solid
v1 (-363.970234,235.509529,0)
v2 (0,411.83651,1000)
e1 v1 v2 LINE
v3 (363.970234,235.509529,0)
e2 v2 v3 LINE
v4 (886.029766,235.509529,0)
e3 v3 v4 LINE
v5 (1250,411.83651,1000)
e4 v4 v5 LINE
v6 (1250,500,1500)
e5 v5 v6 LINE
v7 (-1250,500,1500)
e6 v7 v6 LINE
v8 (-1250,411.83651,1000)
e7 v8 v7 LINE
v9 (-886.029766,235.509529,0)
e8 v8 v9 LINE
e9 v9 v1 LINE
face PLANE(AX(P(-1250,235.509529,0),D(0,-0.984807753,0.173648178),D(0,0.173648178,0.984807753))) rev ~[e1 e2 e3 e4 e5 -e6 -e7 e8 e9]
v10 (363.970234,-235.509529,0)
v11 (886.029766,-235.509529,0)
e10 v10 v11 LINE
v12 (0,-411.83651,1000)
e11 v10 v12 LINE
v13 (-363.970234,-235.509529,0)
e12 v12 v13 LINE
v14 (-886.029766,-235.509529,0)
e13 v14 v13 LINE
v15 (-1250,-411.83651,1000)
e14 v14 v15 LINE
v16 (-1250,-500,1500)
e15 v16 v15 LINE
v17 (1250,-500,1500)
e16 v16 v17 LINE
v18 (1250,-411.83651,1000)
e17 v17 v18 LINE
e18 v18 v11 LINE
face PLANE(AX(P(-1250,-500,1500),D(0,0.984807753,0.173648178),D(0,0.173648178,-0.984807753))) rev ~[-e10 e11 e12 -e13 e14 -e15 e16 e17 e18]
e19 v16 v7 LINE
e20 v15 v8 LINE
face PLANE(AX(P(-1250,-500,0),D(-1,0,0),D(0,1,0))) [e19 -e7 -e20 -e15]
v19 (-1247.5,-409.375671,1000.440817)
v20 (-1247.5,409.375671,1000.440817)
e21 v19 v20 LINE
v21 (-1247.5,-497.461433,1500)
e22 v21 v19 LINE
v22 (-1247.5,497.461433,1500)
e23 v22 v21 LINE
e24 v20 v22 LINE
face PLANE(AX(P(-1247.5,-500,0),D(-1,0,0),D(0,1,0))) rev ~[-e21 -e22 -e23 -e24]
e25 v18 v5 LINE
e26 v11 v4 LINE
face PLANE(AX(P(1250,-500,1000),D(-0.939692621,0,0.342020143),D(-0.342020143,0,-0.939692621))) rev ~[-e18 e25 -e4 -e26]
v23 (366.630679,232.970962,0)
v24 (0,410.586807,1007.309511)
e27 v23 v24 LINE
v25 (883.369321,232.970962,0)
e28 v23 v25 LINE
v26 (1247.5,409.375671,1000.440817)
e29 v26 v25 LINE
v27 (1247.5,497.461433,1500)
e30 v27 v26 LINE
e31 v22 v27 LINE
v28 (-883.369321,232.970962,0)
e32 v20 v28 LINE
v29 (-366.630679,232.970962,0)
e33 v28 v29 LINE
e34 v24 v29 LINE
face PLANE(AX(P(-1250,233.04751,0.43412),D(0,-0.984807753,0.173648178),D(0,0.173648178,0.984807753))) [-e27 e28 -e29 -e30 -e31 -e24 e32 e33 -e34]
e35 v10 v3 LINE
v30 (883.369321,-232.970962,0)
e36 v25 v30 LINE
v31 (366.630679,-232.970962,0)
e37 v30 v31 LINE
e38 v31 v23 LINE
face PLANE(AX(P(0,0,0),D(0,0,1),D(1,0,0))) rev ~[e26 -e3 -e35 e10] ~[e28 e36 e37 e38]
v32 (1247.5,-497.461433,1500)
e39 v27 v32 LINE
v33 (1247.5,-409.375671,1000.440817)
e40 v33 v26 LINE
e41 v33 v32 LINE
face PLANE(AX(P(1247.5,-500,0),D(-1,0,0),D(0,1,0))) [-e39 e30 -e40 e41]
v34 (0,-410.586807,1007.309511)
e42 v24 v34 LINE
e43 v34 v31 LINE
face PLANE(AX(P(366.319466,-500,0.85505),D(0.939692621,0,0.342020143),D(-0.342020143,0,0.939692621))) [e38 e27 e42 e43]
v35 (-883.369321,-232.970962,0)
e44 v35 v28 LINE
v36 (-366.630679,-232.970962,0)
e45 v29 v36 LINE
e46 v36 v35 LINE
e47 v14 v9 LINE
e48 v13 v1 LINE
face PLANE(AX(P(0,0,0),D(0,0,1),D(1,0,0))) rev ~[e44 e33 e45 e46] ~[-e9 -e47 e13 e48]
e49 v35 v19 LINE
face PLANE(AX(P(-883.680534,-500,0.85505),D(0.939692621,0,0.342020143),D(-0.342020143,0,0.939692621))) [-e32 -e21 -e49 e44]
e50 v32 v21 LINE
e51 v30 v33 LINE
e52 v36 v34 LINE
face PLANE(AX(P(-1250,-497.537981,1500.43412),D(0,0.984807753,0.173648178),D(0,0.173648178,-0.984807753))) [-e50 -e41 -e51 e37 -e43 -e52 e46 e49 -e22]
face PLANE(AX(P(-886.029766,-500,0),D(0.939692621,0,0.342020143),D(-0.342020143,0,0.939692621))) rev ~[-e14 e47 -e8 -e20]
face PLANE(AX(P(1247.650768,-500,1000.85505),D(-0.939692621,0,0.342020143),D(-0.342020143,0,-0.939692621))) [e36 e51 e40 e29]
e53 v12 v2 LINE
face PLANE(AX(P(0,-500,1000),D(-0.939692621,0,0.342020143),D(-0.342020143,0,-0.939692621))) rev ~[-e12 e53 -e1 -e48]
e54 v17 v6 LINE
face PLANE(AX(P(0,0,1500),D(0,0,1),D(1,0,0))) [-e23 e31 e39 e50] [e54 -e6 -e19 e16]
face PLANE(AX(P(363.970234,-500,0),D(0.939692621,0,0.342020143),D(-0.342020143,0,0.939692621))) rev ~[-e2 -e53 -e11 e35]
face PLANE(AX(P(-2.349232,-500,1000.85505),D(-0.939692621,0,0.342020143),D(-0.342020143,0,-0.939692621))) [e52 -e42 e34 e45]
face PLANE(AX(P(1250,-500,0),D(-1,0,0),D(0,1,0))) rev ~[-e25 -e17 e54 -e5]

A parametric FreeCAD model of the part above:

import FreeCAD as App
import Part
import Sketcher
from FreeCAD import Vector
Q = App.Units.Quantity


def faces_at(feature, points):
    """Names of the faces that lie closest to the given points."""
    faces = feature.Shape.Faces
    near = lambda p: min(range(len(faces)), key=lambda i: faces[i].distToShape(Part.Vertex(*p))[0])
    return sorted({f"Face{near(p) + 1}" for p in points})


def add_polygon(sketch, points):
    """Adds a closed chain of lines whose ends are joined by coincident constraints."""
    first, n = sketch.GeometryCount, len(points)
    for a, b in zip(points, points[1:] + points[:1]):
        sketch.addGeometry(Part.LineSegment(App.Vector(*a, 0), App.Vector(*b, 0)), False)
    for i in range(n):
        sketch.addConstraint(Sketcher.Constraint("Coincident", first + i, 2, first + (i + 1) % n, 1))

doc = App.newDocument("Part")
body = doc.addObject("PartDesign::Body", "Body")

sketch1 = body.newObject("Sketcher::SketchObject", "Sketch")
sketch1.AttachmentSupport = (doc.getObject("XY_Plane"), [""])
sketch1.MapMode = "FlatFace"
add_polygon(sketch1, [(-1250, 500), (-1250, -500), (1250, -500), (1250, 500)])
sketch1.addConstraint([
    Sketcher.Constraint("Vertical", 0),
    Sketcher.Constraint("Horizontal", 1),
    Sketcher.Constraint("Vertical", 2),
    Sketcher.Constraint("Horizontal", 3),
    Sketcher.Constraint("Symmetric", 0, 2, 2, 2, -1, 1),
    Sketcher.Constraint("DistanceX", 1, 1, 1, 2, 2500.0),
    Sketcher.Constraint("DistanceY", 0, 2, 0, 1, 1000.0),
])
pad1 = body.newObject("PartDesign::Pad", "Pad")
pad1.Profile = sketch1
pad1.Length = 1500

sketch2 = body.newObject("Sketcher::SketchObject", "Sketch001")
sketch2.AttachmentSupport = (doc.getObject("XZ_Plane"), [""])
sketch2.MapMode = "FlatFace"
sketch2.AttachmentOffset = App.Placement(Vector(0, 0, 500), App.Rotation())
add_polygon(sketch2, [(-886, 0), (-1250, 1000), (-1250, 0)])
add_polygon(sketch2, [(0, 1000), (-364, 0), (364, 0)])
add_polygon(sketch2, [(1250, 0), (1250, 1000), (886, 0)])
sketch2.addConstraint([
    Sketcher.Constraint("Vertical", 1),
    Sketcher.Constraint("Horizontal", 2),
    Sketcher.Constraint("Horizontal", 4),
    Sketcher.Constraint("Vertical", 6),
    Sketcher.Constraint("Horizontal", 8),
    Sketcher.Constraint("Symmetric", 3, 2, 4, 2, -1, 1),
    Sketcher.Constraint("Symmetric", 2, 2, 7, 2, -1, 1),
    Sketcher.Constraint("Symmetric", 0, 2, 6, 2, -2),
    Sketcher.Constraint("PointOnObject", 1, 2, -1),
    Sketcher.Constraint("PointOnObject", 5, 2, -2),
    Sketcher.Constraint("Parallel", 0, 5),
    Sketcher.Constraint("Horizontal", 0, 2, 5, 2),
    Sketcher.Constraint("DistanceY", 1, 2, 1, 1, 1000.0),
    Sketcher.Constraint("Angle", 0, Q("110 deg")),
    Sketcher.Constraint("DistanceX", 0, 2, -1, 1, 1250.0),
])
pocket1 = body.newObject("PartDesign::Pocket", "Pocket")
pocket1.Profile = sketch2
pocket1.Type = "ThroughAll"

sketch3 = body.newObject("Sketcher::SketchObject", "Sketch002")
sketch3.AttachmentSupport = (doc.getObject("YZ_Plane"), [""])
sketch3.MapMode = "FlatFace"
sketch3.AttachmentOffset = App.Placement(Vector(0, 0, -1250), App.Rotation())
add_polygon(sketch3, [(236, 0), (500, 1500), (500, 0)])
add_polygon(sketch3, [(-236, 0), (-500, 0), (-500, 1500)])
sketch3.addConstraint([
    Sketcher.Constraint("Vertical", 1),
    Sketcher.Constraint("Horizontal", 2),
    Sketcher.Constraint("Horizontal", 3),
    Sketcher.Constraint("Vertical", 4),
    Sketcher.Constraint("Symmetric", 1, 2, 3, 2, -1, 1),
    Sketcher.Constraint("Symmetric", 2, 2, 5, 2, -2),
    Sketcher.Constraint("Horizontal", 0, 2, 4, 2),
    Sketcher.Constraint("DistanceY", 1, 2, 1, 1, 1500.0),
    Sketcher.Constraint("Angle", 0, Q("80 deg")),
    Sketcher.Constraint("DistanceX", -1, 1, 0, 2, 500.0),
])
pocket2 = body.newObject("PartDesign::Pocket", "Pocket001")
pocket2.Profile = sketch3
pocket2.Type = "ThroughAll"
pocket2.Reversed = True
doc.recompute()

thickness = body.newObject("PartDesign::Thickness", "Thickness")
thickness.Base = (pocket2, faces_at(pocket2, [(0, 0, 1500), (-625, 0, 0), (625, 0, 0)]))
thickness.Value = 2.5
thickness.Reversed = True
thickness.Join = "Intersection"

doc.recompute()
